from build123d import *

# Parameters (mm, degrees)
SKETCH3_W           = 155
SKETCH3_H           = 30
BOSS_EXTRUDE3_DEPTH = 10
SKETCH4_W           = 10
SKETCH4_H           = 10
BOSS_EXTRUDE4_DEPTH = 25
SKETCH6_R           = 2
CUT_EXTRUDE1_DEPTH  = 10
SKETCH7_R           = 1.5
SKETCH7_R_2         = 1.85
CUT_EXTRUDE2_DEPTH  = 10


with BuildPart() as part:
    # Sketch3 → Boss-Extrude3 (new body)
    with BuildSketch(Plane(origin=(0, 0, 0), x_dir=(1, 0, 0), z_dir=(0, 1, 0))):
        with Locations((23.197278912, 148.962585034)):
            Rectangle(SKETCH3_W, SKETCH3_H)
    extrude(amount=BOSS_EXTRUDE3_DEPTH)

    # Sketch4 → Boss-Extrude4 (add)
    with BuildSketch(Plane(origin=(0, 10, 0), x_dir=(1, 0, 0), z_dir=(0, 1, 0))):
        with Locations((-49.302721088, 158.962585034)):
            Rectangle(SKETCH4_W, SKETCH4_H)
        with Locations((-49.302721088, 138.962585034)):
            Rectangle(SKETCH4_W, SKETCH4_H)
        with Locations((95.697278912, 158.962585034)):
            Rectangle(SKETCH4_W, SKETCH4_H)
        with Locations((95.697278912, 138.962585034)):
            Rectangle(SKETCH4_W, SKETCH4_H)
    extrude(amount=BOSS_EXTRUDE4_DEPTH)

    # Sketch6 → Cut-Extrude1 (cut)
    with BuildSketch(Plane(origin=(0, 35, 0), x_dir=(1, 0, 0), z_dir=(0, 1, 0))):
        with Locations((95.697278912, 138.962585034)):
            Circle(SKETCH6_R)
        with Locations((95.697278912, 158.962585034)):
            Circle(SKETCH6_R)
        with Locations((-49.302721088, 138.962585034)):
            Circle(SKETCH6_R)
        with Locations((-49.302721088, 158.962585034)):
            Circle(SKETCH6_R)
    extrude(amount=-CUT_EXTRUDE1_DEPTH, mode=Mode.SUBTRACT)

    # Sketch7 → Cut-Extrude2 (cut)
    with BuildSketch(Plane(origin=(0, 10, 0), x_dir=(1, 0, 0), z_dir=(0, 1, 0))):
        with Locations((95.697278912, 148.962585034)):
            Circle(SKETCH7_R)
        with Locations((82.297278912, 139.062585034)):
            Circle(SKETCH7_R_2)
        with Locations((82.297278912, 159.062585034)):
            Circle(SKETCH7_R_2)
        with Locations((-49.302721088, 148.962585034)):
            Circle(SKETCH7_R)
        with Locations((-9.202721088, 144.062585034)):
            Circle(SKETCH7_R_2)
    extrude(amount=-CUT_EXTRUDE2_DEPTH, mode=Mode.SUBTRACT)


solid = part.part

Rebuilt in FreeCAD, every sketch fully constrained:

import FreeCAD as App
import Part
import Sketcher

V = App.Vector


def add_polygon(sketch, points):
    """Adds a closed chain of lines whose ends are joined by coincident constraints."""
    first, n = sketch.GeometryCount, len(points)
    for a, b in zip(points, points[1:] + points[:1]):
        sketch.addGeometry(Part.LineSegment(App.Vector(*a, 0), App.Vector(*b, 0)), False)
    for i in range(n):
        sketch.addConstraint(Sketcher.Constraint("Coincident", first + i, 2, first + (i + 1) % n, 1))

doc = App.newDocument("Part")
body = doc.addObject("PartDesign::Body", "Body")

# Sketch on XZ plane
sketch1 = body.newObject("Sketcher::SketchObject", "Sketch")
sketch1.AttachmentSupport = (doc.getObject("XZ_Plane"), [""])
sketch1.MapMode = "FlatFace"
add_polygon(sketch1, [(-54, -164), (-54, -134), (101, -134), (101, -164)])  # lines 0-3
sketch1.addConstraint([
    Sketcher.Constraint("Vertical", 0),
    Sketcher.Constraint("Horizontal", 1),
    Sketcher.Constraint("Vertical", 2),
    Sketcher.Constraint("Horizontal", 3),
    Sketcher.Constraint("DistanceX", 1, 1, 1, 2, 155.0),
    Sketcher.Constraint("DistanceY", 0, 1, 0, 2, 30.0),
    Sketcher.Constraint("DistanceX", 0, 2, -1, 1, 54.302721),
    Sketcher.Constraint("DistanceY", 0, 2, -1, 1, 133.962585),
])
pad1 = body.newObject("PartDesign::Pad", "Pad")
pad1.Profile = sketch1
pad1.Length = 10
pad1.Reversed = True

# Sketch on XZ plane
sketch2 = body.newObject("Sketcher::SketchObject", "Sketch001")
sketch2.AttachmentSupport = (doc.getObject("XZ_Plane"), [""])
sketch2.MapMode = "FlatFace"
sketch2.AttachmentOffset = App.Placement(V(0, 0, -10), App.Rotation())
add_polygon(sketch2, [(-54, -164), (-54, -154), (-44, -154), (-44, -164)])  # lines 0-3
add_polygon(sketch2, [(-54, -144), (-54, -134), (-44, -134), (-44, -144)])  # lines 4-7
add_polygon(sketch2, [(91, -164), (91, -154), (101, -154), (101, -164)])  # lines 8-11
add_polygon(sketch2, [(91, -144), (91, -134), (101, -134), (101, -144)])  # lines 12-15
sketch2.addConstraint([
    Sketcher.Constraint("Vertical", 0),
    Sketcher.Constraint("Horizontal", 1),
    Sketcher.Constraint("Vertical", 2),
    Sketcher.Constraint("Horizontal", 3),
    Sketcher.Constraint("Vertical", 4),
    Sketcher.Constraint("Horizontal", 5),
    Sketcher.Constraint("Vertical", 6),
    Sketcher.Constraint("Horizontal", 7),
    Sketcher.Constraint("Vertical", 8),
    Sketcher.Constraint("Horizontal", 9),
    Sketcher.Constraint("Vertical", 10),
    Sketcher.Constraint("Horizontal", 11),
    Sketcher.Constraint("Vertical", 12),
    Sketcher.Constraint("Horizontal", 13),
    Sketcher.Constraint("Vertical", 14),
    Sketcher.Constraint("Horizontal", 15),
    Sketcher.Constraint("Horizontal", 1, 2, 8, 2),
    Sketcher.Constraint("Horizontal", 3, 2, 10, 2),
    Sketcher.Constraint("Horizontal", 5, 2, 12, 2),
    Sketcher.Constraint("Horizontal", 7, 2, 14, 2),
    Sketcher.Constraint("Vertical", 3, 2, 4, 2),
    Sketcher.Constraint("Vertical", 2, 2, 5, 2),
    Sketcher.Constraint("Vertical", 11, 2, 12, 2),
    Sketcher.Constraint("Vertical", 10, 2, 13, 2),
    Sketcher.Constraint("Equal", 7, 9),
    Sketcher.Constraint("Equal", 15, 0),
    Sketcher.Constraint("Equal", 2, 4),
    Sketcher.Constraint("DistanceX", 1, 1, 1, 2, 10.0),
    Sketcher.Constraint("DistanceY", 0, 2, 4, 2, 20.0),
    Sketcher.Constraint("DistanceX", 1, 2, 8, 2, 135.0),
    Sketcher.Constraint("DistanceX", 0, 2, -1, 1, 54.302721),
    Sketcher.Constraint("DistanceY", 0, 2, -1, 1, 153.962585),
])
pad2 = body.newObject("PartDesign::Pad", "Pad001")
pad2.Profile = sketch2
pad2.Length = 25
pad2.Reversed = True

# Sketch on XZ plane
sketch3 = body.newObject("Sketcher::SketchObject", "Sketch002")
sketch3.AttachmentSupport = (doc.getObject("XZ_Plane"), [""])
sketch3.MapMode = "FlatFace"
sketch3.AttachmentOffset = App.Placement(V(0, 0, -35), App.Rotation())
sketch3.addGeometry([
    Part.Circle(V(95.7, -139, 0), V(0, 0, 1), 2),
    Part.Circle(V(95.7, -159, 0), V(0, 0, 1), 2),
    Part.Circle(V(-49.3, -139, 0), V(0, 0, 1), 2),
    Part.Circle(V(-49.3, -159, 0), V(0, 0, 1), 2),
], False)
sketch3.addConstraint([
    Sketcher.Constraint("Equal", 0, 1),
    Sketcher.Constraint("Equal", 1, 2),
    Sketcher.Constraint("Equal", 2, 3),
    Sketcher.Constraint("Horizontal", 0, 3, 2, 3),
    Sketcher.Constraint("Horizontal", 1, 3, 3, 3),
    Sketcher.Constraint("Vertical", 0, 3, 1, 3),
    Sketcher.Constraint("Vertical", 2, 3, 3, 3),
    Sketcher.Constraint("Diameter", 0, 4.0),
    Sketcher.Constraint("DistanceY", 1, 3, 0, 3, 20.0),
    Sketcher.Constraint("DistanceX", 2, 3, 0, 3, 145.0),
    Sketcher.Constraint("DistanceX", -1, 1, 0, 3, 95.697279),
    Sketcher.Constraint("DistanceY", 0, 3, -1, 1, 138.962585),
])
pocket1 = body.newObject("PartDesign::Pocket", "Pocket")
pocket1.Profile = sketch3
pocket1.Length = 10
pocket1.Reversed = True

# Sketch on XZ plane
sketch4 = body.newObject("Sketcher::SketchObject", "Sketch003")
sketch4.AttachmentSupport = (doc.getObject("XZ_Plane"), [""])
sketch4.MapMode = "FlatFace"
sketch4.AttachmentOffset = App.Placement(V(0, 0, -10), App.Rotation())
sketch4.addGeometry([
    Part.Circle(V(95.7, -149, 0), V(0, 0, 1), 1.5),  # 0
    Part.Circle(V(82.3, -139.1, 0), V(0, 0, 1), 1.9),  # 1
    Part.Circle(V(82.3, -159.1, 0), V(0, 0, 1), 1.9),  # 2
    Part.Circle(V(-49.3, -149, 0), V(0, 0, 1), 1.5),  # 3
    Part.Circle(V(-9.2, -144.1, 0), V(0, 0, 1), 1.9),  # 4
], False)
sketch4.addConstraint([
    Sketcher.Constraint("Equal", 1, 2),
    Sketcher.Constraint("Equal", 0, 3),
    Sketcher.Constraint("Equal", 2, 4),
    Sketcher.Constraint("Horizontal", 0, 3, 3, 3),
    Sketcher.Constraint("Vertical", 1, 3, 2, 3),
    Sketcher.Constraint("Diameter", 0, 3.0),
    Sketcher.Constraint("Diameter", 1, 3.7),
    Sketcher.Constraint("DistanceY", 2, 3, 1, 3, 20.0),
    Sketcher.Constraint("DistanceX", 3, 3, 0, 3, 145.0),
    Sketcher.Constraint("DistanceY", 4, 3, 1, 3, 5.0),
    Sketcher.Constraint("DistanceX", 1, 3, 0, 3, 13.4),
    Sketcher.Constraint("DistanceY", 0, 3, 1, 3, 9.9),
    Sketcher.Constraint("DistanceX", 3, 3, 4, 3, 40.1),
    Sketcher.Constraint("DistanceX", -1, 1, 0, 3, 95.697279),
    Sketcher.Constraint("DistanceY", 0, 3, -1, 1, 148.962585),
])
pocket2 = body.newObject("PartDesign::Pocket", "Pocket001")
pocket2.Profile = sketch4
pocket2.Length = 10
pocket2.Reversed = True

doc.recompute()
